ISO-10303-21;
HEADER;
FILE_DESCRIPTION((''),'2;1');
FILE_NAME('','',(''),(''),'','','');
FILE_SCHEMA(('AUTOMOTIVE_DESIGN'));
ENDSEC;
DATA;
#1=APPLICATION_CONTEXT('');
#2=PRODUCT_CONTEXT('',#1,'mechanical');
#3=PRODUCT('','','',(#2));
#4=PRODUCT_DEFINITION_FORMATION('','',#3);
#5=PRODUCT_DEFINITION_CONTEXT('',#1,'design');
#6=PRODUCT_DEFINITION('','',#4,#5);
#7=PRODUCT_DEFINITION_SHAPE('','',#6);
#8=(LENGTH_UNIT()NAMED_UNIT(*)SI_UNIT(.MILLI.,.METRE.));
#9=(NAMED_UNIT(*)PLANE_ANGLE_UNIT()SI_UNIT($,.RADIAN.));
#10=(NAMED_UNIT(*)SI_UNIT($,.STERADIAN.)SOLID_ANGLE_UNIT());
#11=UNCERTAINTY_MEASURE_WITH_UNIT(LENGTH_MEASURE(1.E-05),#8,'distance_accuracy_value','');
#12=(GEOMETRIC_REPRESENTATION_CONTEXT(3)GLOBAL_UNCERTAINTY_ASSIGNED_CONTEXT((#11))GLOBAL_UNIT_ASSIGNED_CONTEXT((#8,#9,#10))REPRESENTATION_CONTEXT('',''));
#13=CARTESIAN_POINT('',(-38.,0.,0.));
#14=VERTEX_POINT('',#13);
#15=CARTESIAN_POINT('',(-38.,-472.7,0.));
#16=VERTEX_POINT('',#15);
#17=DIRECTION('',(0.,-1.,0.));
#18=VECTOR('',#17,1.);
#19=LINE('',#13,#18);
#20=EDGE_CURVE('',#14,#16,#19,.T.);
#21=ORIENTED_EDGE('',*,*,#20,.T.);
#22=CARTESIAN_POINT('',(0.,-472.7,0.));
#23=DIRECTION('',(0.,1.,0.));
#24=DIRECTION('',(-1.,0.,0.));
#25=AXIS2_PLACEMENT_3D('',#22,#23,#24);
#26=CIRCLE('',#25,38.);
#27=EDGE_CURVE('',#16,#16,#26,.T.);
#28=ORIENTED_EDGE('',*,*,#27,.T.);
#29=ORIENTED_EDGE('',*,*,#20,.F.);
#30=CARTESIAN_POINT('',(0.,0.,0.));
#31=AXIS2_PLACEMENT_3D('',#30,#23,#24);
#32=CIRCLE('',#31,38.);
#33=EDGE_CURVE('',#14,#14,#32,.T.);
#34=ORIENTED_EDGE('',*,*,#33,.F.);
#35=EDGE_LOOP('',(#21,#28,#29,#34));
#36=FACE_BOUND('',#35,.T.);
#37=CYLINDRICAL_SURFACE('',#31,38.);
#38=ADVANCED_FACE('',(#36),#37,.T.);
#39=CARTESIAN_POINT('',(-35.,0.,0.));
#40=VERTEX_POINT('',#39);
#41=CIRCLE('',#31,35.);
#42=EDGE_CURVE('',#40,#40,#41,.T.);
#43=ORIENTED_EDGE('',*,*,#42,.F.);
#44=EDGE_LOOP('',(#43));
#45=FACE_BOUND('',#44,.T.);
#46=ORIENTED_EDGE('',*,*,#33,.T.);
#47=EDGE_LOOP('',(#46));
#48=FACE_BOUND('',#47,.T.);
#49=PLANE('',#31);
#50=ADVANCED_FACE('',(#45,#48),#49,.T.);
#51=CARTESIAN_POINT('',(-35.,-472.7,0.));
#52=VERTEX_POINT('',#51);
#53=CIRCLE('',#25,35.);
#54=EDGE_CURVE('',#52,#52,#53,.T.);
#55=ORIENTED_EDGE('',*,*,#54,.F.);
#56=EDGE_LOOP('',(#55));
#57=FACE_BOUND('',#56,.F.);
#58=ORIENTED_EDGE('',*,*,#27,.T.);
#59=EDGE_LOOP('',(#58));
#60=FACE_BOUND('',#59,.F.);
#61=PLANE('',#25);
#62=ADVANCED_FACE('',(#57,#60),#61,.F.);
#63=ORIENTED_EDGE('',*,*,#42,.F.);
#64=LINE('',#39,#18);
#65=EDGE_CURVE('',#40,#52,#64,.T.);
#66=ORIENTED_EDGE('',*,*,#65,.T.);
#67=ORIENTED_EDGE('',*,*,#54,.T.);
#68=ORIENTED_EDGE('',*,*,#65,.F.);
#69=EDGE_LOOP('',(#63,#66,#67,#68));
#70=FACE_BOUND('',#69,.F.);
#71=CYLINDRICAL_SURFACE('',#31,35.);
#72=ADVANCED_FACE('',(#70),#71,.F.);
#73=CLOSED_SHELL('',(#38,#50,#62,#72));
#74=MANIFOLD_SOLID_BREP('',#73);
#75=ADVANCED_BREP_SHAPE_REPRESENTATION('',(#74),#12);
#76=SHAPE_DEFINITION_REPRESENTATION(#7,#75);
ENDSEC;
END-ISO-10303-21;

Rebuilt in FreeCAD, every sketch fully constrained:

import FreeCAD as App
import Part
import Sketcher

V = App.Vector

doc = App.newDocument("Part")
body = doc.addObject("PartDesign::Body", "Body")

# Sketch on XZ plane
sketch1 = body.newObject("Sketcher::SketchObject", "Sketch")
sketch1.AttachmentSupport = (doc.getObject("XZ_Plane"), [""])
sketch1.MapMode = "FlatFace"
sketch1.addGeometry([
    Part.Circle(V(0, 0, 0), V(0, 0, 1), 38),
    Part.Circle(V(0, 0, 0), V(0, 0, 1), 35),
], False)
sketch1.addConstraint([
    Sketcher.Constraint("Coincident", 0, 3, -1, 1),
    Sketcher.Constraint("Coincident", 1, 3, -1, 1),
    Sketcher.Constraint("Diameter", 0, 76.0),
    Sketcher.Constraint("Diameter", 1, 70.0),
])
pad1 = body.newObject("PartDesign::Pad", "Pad")
pad1.Profile = sketch1
pad1.Length = 472.7

doc.recompute()
